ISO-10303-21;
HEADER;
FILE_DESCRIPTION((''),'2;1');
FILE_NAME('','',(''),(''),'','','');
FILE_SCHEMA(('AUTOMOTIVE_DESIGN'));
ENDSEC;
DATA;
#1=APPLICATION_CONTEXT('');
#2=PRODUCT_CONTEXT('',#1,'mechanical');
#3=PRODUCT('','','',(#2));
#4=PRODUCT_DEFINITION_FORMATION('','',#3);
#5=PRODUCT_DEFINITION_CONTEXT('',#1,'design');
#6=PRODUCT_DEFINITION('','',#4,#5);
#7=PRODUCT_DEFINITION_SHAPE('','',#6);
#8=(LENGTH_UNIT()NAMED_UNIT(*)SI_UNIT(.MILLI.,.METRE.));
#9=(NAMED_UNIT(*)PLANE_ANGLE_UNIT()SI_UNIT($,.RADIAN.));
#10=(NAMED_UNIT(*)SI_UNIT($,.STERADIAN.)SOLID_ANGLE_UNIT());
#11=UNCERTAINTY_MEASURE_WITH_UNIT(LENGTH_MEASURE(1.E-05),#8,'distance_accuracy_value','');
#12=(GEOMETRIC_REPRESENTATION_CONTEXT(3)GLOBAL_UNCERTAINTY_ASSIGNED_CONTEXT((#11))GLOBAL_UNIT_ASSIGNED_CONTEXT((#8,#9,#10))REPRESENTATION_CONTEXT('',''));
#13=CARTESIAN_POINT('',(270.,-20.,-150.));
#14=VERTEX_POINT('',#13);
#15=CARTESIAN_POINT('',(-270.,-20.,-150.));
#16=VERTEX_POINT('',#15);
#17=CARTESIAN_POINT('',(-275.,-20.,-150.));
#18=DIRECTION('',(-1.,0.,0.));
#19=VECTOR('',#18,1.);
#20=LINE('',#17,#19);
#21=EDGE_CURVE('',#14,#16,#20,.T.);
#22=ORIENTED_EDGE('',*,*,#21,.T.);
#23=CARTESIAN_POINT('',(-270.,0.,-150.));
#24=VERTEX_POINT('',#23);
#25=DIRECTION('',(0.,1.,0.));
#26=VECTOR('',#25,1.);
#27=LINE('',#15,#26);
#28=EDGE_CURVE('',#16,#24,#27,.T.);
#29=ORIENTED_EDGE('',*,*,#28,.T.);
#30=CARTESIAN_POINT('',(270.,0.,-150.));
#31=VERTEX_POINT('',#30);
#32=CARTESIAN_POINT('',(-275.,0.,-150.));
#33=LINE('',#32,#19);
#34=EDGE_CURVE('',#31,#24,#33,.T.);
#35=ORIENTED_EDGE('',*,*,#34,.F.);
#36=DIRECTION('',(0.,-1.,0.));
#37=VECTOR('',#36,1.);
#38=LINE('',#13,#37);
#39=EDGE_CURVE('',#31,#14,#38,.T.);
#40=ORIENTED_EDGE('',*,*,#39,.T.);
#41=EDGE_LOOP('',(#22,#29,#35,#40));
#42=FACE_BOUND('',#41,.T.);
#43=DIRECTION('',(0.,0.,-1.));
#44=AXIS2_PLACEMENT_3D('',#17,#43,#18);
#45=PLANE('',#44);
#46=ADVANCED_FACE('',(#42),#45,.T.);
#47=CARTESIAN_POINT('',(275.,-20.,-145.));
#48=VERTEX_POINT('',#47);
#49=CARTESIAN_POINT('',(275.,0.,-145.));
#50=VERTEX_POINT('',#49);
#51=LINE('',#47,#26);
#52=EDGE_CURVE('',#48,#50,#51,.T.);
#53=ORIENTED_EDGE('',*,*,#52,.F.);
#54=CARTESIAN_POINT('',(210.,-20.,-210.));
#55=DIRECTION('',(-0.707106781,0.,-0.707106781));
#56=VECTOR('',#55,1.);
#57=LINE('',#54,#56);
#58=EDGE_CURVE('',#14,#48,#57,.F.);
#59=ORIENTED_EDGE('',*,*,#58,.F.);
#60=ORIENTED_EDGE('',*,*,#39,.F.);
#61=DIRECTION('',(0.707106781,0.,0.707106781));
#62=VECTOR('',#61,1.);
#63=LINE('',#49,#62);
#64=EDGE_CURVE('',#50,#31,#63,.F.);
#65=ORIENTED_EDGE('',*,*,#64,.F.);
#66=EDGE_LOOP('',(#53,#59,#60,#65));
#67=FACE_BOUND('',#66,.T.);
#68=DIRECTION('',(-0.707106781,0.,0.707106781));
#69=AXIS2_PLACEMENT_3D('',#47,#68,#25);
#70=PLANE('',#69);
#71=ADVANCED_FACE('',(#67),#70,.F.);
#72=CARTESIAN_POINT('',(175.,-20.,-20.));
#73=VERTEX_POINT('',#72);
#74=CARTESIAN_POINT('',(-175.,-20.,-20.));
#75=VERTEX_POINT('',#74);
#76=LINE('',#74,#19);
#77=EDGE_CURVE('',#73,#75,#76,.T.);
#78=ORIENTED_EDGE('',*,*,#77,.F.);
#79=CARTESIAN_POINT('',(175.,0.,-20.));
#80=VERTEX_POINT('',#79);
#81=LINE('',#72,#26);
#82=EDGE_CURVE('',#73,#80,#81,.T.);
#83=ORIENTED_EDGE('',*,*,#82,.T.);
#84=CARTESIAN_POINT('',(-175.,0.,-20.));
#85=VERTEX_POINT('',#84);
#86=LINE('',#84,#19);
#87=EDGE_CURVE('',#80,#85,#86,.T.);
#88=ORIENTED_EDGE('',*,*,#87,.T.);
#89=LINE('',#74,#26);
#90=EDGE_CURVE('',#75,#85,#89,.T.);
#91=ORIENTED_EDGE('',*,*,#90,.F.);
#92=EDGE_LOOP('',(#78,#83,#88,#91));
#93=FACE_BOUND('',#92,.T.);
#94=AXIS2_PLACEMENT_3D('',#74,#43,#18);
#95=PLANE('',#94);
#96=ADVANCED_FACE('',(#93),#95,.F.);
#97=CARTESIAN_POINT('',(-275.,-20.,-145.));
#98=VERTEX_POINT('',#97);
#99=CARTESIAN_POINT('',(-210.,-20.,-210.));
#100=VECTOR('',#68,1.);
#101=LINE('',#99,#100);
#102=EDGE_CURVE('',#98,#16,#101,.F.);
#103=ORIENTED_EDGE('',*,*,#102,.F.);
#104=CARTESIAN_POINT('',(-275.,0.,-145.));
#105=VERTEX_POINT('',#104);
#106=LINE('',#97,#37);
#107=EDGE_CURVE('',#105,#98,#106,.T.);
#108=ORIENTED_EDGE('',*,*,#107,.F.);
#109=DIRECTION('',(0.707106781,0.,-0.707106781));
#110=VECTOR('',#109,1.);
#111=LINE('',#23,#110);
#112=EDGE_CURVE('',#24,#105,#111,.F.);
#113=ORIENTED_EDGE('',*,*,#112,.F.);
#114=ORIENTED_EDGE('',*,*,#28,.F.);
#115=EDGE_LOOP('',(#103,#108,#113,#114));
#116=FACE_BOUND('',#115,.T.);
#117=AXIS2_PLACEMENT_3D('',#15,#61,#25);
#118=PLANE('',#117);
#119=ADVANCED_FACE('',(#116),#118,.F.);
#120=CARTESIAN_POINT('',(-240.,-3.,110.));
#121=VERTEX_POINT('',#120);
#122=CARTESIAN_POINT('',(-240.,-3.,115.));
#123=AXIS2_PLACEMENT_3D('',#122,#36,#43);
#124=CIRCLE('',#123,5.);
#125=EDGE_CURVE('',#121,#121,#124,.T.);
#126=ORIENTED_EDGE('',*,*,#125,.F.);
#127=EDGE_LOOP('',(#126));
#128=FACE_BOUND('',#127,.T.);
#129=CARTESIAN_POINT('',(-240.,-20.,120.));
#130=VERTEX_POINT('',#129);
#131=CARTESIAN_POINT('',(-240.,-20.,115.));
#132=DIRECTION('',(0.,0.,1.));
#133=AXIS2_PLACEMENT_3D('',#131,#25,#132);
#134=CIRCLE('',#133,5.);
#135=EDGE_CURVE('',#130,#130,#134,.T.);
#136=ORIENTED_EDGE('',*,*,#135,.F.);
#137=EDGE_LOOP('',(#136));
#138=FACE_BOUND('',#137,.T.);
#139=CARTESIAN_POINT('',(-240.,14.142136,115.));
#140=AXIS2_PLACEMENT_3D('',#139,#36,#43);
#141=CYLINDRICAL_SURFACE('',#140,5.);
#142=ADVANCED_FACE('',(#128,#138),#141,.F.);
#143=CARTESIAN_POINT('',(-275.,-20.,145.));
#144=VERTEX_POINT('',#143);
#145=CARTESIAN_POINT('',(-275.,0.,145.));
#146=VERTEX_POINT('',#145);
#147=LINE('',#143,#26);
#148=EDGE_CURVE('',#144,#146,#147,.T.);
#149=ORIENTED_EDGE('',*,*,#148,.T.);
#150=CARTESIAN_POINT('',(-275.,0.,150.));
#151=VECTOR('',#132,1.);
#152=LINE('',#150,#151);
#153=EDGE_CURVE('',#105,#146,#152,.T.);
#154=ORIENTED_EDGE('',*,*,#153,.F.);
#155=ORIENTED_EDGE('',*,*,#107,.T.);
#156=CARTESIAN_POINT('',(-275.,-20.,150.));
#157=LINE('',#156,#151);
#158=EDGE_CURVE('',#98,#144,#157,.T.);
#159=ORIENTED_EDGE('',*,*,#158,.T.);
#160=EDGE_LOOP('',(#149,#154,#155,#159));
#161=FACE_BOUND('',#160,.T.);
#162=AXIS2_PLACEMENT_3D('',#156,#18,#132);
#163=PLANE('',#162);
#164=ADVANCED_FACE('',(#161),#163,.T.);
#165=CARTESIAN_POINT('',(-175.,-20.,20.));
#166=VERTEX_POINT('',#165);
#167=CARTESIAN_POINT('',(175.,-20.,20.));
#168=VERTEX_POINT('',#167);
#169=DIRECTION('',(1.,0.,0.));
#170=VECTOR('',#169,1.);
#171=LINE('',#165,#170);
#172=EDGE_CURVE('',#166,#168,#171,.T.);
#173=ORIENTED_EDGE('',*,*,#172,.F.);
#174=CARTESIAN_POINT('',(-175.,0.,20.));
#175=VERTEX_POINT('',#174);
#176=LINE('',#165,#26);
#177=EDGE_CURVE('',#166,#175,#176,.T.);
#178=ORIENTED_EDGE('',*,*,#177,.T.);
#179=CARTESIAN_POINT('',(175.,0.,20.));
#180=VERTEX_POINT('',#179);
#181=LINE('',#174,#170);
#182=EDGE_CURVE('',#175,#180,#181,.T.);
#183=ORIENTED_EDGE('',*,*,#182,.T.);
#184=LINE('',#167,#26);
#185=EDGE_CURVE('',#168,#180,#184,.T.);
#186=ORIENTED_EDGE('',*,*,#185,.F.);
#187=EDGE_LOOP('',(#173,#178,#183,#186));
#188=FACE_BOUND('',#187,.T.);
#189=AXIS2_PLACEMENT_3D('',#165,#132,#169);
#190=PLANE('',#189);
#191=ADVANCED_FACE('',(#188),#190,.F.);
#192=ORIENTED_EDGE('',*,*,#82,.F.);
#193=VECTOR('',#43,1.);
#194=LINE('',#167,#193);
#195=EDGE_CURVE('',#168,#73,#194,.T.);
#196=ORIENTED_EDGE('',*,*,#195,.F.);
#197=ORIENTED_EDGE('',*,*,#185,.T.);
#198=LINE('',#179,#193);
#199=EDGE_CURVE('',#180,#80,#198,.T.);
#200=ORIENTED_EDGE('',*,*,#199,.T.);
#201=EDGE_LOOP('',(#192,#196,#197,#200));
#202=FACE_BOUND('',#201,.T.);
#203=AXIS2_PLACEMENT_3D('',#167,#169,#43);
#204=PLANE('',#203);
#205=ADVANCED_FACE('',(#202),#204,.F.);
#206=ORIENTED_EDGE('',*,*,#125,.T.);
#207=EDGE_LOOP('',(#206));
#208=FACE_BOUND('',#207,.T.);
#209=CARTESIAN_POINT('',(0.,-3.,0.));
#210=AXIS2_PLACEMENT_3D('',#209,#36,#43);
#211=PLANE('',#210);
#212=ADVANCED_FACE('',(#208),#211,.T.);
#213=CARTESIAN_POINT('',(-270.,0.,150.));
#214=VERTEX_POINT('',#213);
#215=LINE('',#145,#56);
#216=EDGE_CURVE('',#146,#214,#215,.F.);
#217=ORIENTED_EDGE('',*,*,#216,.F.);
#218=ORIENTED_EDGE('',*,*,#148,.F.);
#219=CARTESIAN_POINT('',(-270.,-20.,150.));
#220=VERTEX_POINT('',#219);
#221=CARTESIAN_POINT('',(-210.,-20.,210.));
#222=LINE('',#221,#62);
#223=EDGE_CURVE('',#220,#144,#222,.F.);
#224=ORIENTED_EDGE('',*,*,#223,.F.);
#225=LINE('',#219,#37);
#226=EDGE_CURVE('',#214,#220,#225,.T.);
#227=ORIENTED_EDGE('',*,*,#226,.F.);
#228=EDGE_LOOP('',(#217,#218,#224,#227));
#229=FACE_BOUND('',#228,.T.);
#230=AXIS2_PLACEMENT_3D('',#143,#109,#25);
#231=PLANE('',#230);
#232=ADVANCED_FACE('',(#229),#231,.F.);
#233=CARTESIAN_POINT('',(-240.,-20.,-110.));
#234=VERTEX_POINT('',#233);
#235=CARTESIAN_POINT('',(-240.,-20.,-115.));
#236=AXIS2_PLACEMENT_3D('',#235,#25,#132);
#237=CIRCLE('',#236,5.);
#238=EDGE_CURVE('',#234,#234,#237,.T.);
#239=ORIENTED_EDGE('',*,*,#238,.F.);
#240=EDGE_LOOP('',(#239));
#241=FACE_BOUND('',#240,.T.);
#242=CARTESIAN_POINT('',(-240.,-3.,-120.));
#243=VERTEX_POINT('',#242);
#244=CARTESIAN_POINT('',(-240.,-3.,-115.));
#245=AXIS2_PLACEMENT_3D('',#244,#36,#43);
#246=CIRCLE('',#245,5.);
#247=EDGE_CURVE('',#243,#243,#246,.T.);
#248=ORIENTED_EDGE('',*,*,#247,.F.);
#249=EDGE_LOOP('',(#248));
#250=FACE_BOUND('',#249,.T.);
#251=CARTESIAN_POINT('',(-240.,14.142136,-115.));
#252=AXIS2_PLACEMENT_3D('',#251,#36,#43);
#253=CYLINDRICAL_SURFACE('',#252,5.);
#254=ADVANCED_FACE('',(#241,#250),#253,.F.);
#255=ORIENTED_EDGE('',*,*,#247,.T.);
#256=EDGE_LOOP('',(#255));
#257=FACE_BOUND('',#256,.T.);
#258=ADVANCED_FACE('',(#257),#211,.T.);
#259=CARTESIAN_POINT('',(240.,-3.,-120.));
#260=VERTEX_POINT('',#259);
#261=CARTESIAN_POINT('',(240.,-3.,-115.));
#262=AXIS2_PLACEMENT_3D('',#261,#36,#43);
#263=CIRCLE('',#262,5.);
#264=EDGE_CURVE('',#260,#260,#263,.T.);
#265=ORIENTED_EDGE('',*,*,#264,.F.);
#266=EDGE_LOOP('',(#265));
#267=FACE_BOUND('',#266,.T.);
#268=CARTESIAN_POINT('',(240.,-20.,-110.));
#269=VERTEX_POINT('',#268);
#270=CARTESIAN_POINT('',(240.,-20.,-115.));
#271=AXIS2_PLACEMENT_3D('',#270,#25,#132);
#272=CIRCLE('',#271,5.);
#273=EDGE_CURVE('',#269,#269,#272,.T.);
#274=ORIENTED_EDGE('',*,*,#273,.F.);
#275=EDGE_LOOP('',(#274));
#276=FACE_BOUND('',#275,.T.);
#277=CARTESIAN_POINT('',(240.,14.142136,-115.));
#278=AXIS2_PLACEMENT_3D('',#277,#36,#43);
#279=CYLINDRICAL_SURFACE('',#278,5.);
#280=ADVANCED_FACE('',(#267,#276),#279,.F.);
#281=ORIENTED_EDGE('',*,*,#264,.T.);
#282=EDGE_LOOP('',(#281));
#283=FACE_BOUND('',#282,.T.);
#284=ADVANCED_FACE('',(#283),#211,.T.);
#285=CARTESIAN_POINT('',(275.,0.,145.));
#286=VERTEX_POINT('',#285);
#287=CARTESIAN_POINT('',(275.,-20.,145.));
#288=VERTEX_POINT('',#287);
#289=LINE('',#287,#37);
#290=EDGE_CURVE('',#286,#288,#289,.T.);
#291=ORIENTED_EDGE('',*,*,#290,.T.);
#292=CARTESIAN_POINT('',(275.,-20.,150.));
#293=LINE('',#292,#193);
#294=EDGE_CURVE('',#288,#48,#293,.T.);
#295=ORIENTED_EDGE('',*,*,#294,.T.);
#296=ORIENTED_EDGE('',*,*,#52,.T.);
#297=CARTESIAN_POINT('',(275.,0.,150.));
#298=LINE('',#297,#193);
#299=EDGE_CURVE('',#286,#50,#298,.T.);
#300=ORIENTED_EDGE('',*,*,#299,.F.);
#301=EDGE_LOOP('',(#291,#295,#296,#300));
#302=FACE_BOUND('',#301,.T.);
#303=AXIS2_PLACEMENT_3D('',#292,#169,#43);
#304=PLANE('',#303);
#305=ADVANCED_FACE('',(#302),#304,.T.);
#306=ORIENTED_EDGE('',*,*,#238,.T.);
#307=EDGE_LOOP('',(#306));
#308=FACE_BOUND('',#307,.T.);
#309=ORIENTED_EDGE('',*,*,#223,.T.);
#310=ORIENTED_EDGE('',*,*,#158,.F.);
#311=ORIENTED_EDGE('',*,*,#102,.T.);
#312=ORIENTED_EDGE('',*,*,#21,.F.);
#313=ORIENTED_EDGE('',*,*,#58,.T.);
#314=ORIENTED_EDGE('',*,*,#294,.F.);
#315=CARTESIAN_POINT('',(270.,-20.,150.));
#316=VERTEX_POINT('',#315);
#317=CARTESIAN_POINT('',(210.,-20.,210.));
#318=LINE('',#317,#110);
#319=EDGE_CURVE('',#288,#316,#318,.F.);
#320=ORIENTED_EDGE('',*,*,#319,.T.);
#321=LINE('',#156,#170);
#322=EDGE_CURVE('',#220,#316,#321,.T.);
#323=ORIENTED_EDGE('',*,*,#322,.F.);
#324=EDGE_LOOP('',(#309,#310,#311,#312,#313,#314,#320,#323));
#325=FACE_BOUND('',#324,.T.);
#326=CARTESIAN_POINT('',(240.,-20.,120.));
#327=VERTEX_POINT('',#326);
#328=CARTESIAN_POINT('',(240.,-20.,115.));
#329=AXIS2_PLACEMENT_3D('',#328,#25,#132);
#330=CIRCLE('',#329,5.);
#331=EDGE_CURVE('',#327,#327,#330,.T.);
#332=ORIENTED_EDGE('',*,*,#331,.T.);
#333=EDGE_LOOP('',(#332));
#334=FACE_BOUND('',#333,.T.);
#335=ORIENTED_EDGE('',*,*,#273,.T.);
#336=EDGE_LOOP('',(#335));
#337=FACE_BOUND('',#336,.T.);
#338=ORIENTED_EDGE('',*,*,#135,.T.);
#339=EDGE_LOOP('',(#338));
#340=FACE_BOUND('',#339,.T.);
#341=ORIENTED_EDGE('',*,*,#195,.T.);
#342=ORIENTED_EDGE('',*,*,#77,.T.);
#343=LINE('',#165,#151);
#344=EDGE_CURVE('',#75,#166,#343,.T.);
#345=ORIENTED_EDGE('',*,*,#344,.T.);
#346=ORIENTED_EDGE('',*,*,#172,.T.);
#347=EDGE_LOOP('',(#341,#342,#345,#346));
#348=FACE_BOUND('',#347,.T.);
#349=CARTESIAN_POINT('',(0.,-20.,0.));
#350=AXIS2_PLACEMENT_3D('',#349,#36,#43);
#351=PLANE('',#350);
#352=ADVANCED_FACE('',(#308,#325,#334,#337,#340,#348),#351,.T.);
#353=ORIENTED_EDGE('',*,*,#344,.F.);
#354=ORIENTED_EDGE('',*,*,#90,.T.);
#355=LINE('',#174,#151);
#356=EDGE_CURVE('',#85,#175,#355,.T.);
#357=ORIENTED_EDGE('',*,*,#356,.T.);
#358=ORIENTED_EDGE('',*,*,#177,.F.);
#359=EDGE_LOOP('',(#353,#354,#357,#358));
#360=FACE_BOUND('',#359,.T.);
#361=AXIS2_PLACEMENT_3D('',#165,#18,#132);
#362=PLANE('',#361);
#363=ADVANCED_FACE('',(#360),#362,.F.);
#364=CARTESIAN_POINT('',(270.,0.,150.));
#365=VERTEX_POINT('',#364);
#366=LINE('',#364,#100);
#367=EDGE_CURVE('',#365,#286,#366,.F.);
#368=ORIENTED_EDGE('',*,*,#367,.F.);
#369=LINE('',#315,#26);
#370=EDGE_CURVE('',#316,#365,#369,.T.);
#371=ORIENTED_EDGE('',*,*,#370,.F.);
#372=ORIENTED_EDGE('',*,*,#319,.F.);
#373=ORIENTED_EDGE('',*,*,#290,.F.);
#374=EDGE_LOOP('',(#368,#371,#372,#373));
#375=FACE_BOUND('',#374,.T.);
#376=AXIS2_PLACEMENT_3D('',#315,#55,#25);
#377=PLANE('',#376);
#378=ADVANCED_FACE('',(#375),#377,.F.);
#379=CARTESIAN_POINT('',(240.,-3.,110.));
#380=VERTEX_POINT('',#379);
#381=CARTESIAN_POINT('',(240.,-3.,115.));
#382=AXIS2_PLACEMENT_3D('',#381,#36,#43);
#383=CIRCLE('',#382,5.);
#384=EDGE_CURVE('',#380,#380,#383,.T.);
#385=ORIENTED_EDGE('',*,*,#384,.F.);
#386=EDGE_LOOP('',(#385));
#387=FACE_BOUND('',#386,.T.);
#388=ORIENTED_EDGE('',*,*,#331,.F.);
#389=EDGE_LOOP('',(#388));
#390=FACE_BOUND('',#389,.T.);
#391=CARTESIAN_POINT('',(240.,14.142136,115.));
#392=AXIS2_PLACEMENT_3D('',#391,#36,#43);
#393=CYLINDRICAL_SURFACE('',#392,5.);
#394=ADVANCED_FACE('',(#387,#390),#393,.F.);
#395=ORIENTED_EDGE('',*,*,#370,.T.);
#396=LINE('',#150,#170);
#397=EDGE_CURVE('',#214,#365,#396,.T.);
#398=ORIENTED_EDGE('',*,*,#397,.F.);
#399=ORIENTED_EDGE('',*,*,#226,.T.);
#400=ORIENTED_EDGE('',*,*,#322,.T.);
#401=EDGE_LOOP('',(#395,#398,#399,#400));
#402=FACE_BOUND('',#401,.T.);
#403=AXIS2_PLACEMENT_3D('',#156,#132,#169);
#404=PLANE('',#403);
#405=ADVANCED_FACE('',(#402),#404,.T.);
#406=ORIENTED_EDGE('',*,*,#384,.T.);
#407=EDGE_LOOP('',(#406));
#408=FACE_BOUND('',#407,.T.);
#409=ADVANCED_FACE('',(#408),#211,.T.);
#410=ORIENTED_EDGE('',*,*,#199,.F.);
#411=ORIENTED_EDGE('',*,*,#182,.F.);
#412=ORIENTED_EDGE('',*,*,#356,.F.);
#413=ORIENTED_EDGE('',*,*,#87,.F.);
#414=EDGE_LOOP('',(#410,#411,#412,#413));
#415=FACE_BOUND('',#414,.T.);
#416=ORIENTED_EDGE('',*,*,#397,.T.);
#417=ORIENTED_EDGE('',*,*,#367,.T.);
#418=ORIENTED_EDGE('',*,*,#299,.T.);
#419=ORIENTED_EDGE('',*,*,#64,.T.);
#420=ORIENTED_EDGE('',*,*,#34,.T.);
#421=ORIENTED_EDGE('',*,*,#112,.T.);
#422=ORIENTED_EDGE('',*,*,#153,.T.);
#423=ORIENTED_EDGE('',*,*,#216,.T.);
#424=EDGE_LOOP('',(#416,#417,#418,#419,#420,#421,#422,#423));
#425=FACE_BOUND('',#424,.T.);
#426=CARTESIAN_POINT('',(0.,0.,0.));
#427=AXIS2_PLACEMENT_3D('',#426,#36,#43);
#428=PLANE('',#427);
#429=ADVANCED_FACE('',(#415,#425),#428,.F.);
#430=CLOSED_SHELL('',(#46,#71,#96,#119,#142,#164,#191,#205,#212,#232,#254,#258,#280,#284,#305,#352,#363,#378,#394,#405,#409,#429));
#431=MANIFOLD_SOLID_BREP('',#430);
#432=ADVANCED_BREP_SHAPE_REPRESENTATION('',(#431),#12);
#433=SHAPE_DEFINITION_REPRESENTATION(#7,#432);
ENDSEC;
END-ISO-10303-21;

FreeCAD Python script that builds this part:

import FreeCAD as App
import Part
import Sketcher
from FreeCAD import Vector
Q = App.Units.Quantity


def edges_at(feature, points):
    """Names of the edges that pass closest to the given points."""
    edges = feature.Shape.Edges
    near = lambda p: min(range(len(edges)), key=lambda i: edges[i].distToShape(Part.Vertex(*p))[0])
    return sorted({f"Edge{near(p) + 1}" for p in points})

doc = App.newDocument("Part")
body = doc.addObject("PartDesign::Body", "Body")

sketch1 = body.newObject("Sketcher::SketchObject", "Sketch")
sketch1.AttachmentSupport = (doc.getObject("XZ_Plane"), [""])
sketch1.MapMode = "FlatFace"
sketch1.addGeometry(Part.LineSegment(Vector(-275, -150, 0), Vector(-275, 150, 0)), False)
sketch1.addGeometry(Part.LineSegment(Vector(-275, 150, 0), Vector(275, 150, 0)), False)
sketch1.addGeometry(Part.LineSegment(Vector(275, 150, 0), Vector(275, -150, 0)), False)
sketch1.addGeometry(Part.LineSegment(Vector(275, -150, 0), Vector(-275, -150, 0)), False)
sketch1.addGeometry(Part.LineSegment(Vector(175, 20, 0), Vector(-175, 20, 0)), False)
sketch1.addGeometry(Part.LineSegment(Vector(-175, 20, 0), Vector(-175, -20, 0)), False)
sketch1.addGeometry(Part.LineSegment(Vector(-175, -20, 0), Vector(175, -20, 0)), False)
sketch1.addGeometry(Part.LineSegment(Vector(175, -20, 0), Vector(175, 20, 0)), False)
sketch1.addConstraint(Sketcher.Constraint("Coincident", 0, 2, 1, 1))
sketch1.addConstraint(Sketcher.Constraint("Coincident", 1, 2, 2, 1))
sketch1.addConstraint(Sketcher.Constraint("Coincident", 2, 2, 3, 1))
sketch1.addConstraint(Sketcher.Constraint("Coincident", 3, 2, 0, 1))
sketch1.addConstraint(Sketcher.Constraint("Coincident", 4, 2, 5, 1))
sketch1.addConstraint(Sketcher.Constraint("Coincident", 5, 2, 6, 1))
sketch1.addConstraint(Sketcher.Constraint("Coincident", 6, 2, 7, 1))
sketch1.addConstraint(Sketcher.Constraint("Coincident", 7, 2, 4, 1))
sketch1.addConstraint(Sketcher.Constraint("Vertical", 0))
sketch1.addConstraint(Sketcher.Constraint("Horizontal", 1))
sketch1.addConstraint(Sketcher.Constraint("Vertical", 2))
sketch1.addConstraint(Sketcher.Constraint("Horizontal", 3))
sketch1.addConstraint(Sketcher.Constraint("Horizontal", 4))
sketch1.addConstraint(Sketcher.Constraint("Vertical", 5))
sketch1.addConstraint(Sketcher.Constraint("Horizontal", 6))
sketch1.addConstraint(Sketcher.Constraint("Vertical", 7))
sketch1.addConstraint(Sketcher.Constraint("Symmetric", 0, 2, 2, 2, -1, 1))
sketch1.addConstraint(Sketcher.Constraint("Symmetric", 4, 2, 6, 2, -1, 1))
sketch1.addConstraint(Sketcher.Constraint("DistanceX", 1, 1, 1, 2, Q("550 mm")))
sketch1.addConstraint(Sketcher.Constraint("DistanceX", 4, 2, 4, 1, Q("350 mm")))
sketch1.addConstraint(Sketcher.Constraint("DistanceY", 0, 1, 0, 2, Q("300 mm")))
sketch1.addConstraint(Sketcher.Constraint("DistanceY", 5, 2, 5, 1, Q("40 mm")))
pad1 = body.newObject("PartDesign::Pad", "Pad")
pad1.Profile = sketch1
pad1.Length = 20
doc.recompute()

chamfer = body.newObject("PartDesign::Chamfer", "Chamfer")
chamfer.Base = (pad1, edges_at(pad1, [
    (275, -10, 150),
    (-275, -10, 150),
    (-275, -10, -150),
    (275, -10, -150),
]))
chamfer.Size = 5

sketch2 = body.newObject("Sketcher::SketchObject", "Sketch001")
sketch2.AttachmentSupport = (doc.getObject("XZ_Plane"), [""])
sketch2.MapMode = "FlatFace"
sketch2.AttachmentOffset = App.Placement(Vector(0, 0, 20), App.Rotation())
sketch2.addGeometry(Part.Circle(Vector(-240, 115, 0), Vector(0, 0, 1), 5), False)
sketch2.addGeometry(Part.Circle(Vector(240, 115, 0), Vector(0, 0, 1), 5), False)
sketch2.addGeometry(Part.Circle(Vector(240, -115, 0), Vector(0, 0, 1), 5), False)
sketch2.addGeometry(Part.Circle(Vector(-240, -115, 0), Vector(0, 0, 1), 5), False)
sketch2.addConstraint(Sketcher.Constraint("Equal", 0, 1))
sketch2.addConstraint(Sketcher.Constraint("Equal", 1, 2))
sketch2.addConstraint(Sketcher.Constraint("Equal", 2, 3))
sketch2.addConstraint(Sketcher.Constraint("Symmetric", 0, 3, 2, 3, -1, 1))
sketch2.addConstraint(Sketcher.Constraint("Symmetric", 1, 3, 3, 3, -1, 1))
sketch2.addConstraint(Sketcher.Constraint("Symmetric", 0, 3, 1, 3, -2))
sketch2.addConstraint(Sketcher.Constraint("Diameter", 0, Q("10 mm")))
sketch2.addConstraint(Sketcher.Constraint("DistanceX", 0, 3, -1, 1, Q("240 mm")))
sketch2.addConstraint(Sketcher.Constraint("DistanceY", -1, 1, 0, 3, Q("115 mm")))
pocket1 = body.newObject("PartDesign::Pocket", "Pocket")
pocket1.Profile = sketch2
pocket1.Length = 17

doc.recompute()
